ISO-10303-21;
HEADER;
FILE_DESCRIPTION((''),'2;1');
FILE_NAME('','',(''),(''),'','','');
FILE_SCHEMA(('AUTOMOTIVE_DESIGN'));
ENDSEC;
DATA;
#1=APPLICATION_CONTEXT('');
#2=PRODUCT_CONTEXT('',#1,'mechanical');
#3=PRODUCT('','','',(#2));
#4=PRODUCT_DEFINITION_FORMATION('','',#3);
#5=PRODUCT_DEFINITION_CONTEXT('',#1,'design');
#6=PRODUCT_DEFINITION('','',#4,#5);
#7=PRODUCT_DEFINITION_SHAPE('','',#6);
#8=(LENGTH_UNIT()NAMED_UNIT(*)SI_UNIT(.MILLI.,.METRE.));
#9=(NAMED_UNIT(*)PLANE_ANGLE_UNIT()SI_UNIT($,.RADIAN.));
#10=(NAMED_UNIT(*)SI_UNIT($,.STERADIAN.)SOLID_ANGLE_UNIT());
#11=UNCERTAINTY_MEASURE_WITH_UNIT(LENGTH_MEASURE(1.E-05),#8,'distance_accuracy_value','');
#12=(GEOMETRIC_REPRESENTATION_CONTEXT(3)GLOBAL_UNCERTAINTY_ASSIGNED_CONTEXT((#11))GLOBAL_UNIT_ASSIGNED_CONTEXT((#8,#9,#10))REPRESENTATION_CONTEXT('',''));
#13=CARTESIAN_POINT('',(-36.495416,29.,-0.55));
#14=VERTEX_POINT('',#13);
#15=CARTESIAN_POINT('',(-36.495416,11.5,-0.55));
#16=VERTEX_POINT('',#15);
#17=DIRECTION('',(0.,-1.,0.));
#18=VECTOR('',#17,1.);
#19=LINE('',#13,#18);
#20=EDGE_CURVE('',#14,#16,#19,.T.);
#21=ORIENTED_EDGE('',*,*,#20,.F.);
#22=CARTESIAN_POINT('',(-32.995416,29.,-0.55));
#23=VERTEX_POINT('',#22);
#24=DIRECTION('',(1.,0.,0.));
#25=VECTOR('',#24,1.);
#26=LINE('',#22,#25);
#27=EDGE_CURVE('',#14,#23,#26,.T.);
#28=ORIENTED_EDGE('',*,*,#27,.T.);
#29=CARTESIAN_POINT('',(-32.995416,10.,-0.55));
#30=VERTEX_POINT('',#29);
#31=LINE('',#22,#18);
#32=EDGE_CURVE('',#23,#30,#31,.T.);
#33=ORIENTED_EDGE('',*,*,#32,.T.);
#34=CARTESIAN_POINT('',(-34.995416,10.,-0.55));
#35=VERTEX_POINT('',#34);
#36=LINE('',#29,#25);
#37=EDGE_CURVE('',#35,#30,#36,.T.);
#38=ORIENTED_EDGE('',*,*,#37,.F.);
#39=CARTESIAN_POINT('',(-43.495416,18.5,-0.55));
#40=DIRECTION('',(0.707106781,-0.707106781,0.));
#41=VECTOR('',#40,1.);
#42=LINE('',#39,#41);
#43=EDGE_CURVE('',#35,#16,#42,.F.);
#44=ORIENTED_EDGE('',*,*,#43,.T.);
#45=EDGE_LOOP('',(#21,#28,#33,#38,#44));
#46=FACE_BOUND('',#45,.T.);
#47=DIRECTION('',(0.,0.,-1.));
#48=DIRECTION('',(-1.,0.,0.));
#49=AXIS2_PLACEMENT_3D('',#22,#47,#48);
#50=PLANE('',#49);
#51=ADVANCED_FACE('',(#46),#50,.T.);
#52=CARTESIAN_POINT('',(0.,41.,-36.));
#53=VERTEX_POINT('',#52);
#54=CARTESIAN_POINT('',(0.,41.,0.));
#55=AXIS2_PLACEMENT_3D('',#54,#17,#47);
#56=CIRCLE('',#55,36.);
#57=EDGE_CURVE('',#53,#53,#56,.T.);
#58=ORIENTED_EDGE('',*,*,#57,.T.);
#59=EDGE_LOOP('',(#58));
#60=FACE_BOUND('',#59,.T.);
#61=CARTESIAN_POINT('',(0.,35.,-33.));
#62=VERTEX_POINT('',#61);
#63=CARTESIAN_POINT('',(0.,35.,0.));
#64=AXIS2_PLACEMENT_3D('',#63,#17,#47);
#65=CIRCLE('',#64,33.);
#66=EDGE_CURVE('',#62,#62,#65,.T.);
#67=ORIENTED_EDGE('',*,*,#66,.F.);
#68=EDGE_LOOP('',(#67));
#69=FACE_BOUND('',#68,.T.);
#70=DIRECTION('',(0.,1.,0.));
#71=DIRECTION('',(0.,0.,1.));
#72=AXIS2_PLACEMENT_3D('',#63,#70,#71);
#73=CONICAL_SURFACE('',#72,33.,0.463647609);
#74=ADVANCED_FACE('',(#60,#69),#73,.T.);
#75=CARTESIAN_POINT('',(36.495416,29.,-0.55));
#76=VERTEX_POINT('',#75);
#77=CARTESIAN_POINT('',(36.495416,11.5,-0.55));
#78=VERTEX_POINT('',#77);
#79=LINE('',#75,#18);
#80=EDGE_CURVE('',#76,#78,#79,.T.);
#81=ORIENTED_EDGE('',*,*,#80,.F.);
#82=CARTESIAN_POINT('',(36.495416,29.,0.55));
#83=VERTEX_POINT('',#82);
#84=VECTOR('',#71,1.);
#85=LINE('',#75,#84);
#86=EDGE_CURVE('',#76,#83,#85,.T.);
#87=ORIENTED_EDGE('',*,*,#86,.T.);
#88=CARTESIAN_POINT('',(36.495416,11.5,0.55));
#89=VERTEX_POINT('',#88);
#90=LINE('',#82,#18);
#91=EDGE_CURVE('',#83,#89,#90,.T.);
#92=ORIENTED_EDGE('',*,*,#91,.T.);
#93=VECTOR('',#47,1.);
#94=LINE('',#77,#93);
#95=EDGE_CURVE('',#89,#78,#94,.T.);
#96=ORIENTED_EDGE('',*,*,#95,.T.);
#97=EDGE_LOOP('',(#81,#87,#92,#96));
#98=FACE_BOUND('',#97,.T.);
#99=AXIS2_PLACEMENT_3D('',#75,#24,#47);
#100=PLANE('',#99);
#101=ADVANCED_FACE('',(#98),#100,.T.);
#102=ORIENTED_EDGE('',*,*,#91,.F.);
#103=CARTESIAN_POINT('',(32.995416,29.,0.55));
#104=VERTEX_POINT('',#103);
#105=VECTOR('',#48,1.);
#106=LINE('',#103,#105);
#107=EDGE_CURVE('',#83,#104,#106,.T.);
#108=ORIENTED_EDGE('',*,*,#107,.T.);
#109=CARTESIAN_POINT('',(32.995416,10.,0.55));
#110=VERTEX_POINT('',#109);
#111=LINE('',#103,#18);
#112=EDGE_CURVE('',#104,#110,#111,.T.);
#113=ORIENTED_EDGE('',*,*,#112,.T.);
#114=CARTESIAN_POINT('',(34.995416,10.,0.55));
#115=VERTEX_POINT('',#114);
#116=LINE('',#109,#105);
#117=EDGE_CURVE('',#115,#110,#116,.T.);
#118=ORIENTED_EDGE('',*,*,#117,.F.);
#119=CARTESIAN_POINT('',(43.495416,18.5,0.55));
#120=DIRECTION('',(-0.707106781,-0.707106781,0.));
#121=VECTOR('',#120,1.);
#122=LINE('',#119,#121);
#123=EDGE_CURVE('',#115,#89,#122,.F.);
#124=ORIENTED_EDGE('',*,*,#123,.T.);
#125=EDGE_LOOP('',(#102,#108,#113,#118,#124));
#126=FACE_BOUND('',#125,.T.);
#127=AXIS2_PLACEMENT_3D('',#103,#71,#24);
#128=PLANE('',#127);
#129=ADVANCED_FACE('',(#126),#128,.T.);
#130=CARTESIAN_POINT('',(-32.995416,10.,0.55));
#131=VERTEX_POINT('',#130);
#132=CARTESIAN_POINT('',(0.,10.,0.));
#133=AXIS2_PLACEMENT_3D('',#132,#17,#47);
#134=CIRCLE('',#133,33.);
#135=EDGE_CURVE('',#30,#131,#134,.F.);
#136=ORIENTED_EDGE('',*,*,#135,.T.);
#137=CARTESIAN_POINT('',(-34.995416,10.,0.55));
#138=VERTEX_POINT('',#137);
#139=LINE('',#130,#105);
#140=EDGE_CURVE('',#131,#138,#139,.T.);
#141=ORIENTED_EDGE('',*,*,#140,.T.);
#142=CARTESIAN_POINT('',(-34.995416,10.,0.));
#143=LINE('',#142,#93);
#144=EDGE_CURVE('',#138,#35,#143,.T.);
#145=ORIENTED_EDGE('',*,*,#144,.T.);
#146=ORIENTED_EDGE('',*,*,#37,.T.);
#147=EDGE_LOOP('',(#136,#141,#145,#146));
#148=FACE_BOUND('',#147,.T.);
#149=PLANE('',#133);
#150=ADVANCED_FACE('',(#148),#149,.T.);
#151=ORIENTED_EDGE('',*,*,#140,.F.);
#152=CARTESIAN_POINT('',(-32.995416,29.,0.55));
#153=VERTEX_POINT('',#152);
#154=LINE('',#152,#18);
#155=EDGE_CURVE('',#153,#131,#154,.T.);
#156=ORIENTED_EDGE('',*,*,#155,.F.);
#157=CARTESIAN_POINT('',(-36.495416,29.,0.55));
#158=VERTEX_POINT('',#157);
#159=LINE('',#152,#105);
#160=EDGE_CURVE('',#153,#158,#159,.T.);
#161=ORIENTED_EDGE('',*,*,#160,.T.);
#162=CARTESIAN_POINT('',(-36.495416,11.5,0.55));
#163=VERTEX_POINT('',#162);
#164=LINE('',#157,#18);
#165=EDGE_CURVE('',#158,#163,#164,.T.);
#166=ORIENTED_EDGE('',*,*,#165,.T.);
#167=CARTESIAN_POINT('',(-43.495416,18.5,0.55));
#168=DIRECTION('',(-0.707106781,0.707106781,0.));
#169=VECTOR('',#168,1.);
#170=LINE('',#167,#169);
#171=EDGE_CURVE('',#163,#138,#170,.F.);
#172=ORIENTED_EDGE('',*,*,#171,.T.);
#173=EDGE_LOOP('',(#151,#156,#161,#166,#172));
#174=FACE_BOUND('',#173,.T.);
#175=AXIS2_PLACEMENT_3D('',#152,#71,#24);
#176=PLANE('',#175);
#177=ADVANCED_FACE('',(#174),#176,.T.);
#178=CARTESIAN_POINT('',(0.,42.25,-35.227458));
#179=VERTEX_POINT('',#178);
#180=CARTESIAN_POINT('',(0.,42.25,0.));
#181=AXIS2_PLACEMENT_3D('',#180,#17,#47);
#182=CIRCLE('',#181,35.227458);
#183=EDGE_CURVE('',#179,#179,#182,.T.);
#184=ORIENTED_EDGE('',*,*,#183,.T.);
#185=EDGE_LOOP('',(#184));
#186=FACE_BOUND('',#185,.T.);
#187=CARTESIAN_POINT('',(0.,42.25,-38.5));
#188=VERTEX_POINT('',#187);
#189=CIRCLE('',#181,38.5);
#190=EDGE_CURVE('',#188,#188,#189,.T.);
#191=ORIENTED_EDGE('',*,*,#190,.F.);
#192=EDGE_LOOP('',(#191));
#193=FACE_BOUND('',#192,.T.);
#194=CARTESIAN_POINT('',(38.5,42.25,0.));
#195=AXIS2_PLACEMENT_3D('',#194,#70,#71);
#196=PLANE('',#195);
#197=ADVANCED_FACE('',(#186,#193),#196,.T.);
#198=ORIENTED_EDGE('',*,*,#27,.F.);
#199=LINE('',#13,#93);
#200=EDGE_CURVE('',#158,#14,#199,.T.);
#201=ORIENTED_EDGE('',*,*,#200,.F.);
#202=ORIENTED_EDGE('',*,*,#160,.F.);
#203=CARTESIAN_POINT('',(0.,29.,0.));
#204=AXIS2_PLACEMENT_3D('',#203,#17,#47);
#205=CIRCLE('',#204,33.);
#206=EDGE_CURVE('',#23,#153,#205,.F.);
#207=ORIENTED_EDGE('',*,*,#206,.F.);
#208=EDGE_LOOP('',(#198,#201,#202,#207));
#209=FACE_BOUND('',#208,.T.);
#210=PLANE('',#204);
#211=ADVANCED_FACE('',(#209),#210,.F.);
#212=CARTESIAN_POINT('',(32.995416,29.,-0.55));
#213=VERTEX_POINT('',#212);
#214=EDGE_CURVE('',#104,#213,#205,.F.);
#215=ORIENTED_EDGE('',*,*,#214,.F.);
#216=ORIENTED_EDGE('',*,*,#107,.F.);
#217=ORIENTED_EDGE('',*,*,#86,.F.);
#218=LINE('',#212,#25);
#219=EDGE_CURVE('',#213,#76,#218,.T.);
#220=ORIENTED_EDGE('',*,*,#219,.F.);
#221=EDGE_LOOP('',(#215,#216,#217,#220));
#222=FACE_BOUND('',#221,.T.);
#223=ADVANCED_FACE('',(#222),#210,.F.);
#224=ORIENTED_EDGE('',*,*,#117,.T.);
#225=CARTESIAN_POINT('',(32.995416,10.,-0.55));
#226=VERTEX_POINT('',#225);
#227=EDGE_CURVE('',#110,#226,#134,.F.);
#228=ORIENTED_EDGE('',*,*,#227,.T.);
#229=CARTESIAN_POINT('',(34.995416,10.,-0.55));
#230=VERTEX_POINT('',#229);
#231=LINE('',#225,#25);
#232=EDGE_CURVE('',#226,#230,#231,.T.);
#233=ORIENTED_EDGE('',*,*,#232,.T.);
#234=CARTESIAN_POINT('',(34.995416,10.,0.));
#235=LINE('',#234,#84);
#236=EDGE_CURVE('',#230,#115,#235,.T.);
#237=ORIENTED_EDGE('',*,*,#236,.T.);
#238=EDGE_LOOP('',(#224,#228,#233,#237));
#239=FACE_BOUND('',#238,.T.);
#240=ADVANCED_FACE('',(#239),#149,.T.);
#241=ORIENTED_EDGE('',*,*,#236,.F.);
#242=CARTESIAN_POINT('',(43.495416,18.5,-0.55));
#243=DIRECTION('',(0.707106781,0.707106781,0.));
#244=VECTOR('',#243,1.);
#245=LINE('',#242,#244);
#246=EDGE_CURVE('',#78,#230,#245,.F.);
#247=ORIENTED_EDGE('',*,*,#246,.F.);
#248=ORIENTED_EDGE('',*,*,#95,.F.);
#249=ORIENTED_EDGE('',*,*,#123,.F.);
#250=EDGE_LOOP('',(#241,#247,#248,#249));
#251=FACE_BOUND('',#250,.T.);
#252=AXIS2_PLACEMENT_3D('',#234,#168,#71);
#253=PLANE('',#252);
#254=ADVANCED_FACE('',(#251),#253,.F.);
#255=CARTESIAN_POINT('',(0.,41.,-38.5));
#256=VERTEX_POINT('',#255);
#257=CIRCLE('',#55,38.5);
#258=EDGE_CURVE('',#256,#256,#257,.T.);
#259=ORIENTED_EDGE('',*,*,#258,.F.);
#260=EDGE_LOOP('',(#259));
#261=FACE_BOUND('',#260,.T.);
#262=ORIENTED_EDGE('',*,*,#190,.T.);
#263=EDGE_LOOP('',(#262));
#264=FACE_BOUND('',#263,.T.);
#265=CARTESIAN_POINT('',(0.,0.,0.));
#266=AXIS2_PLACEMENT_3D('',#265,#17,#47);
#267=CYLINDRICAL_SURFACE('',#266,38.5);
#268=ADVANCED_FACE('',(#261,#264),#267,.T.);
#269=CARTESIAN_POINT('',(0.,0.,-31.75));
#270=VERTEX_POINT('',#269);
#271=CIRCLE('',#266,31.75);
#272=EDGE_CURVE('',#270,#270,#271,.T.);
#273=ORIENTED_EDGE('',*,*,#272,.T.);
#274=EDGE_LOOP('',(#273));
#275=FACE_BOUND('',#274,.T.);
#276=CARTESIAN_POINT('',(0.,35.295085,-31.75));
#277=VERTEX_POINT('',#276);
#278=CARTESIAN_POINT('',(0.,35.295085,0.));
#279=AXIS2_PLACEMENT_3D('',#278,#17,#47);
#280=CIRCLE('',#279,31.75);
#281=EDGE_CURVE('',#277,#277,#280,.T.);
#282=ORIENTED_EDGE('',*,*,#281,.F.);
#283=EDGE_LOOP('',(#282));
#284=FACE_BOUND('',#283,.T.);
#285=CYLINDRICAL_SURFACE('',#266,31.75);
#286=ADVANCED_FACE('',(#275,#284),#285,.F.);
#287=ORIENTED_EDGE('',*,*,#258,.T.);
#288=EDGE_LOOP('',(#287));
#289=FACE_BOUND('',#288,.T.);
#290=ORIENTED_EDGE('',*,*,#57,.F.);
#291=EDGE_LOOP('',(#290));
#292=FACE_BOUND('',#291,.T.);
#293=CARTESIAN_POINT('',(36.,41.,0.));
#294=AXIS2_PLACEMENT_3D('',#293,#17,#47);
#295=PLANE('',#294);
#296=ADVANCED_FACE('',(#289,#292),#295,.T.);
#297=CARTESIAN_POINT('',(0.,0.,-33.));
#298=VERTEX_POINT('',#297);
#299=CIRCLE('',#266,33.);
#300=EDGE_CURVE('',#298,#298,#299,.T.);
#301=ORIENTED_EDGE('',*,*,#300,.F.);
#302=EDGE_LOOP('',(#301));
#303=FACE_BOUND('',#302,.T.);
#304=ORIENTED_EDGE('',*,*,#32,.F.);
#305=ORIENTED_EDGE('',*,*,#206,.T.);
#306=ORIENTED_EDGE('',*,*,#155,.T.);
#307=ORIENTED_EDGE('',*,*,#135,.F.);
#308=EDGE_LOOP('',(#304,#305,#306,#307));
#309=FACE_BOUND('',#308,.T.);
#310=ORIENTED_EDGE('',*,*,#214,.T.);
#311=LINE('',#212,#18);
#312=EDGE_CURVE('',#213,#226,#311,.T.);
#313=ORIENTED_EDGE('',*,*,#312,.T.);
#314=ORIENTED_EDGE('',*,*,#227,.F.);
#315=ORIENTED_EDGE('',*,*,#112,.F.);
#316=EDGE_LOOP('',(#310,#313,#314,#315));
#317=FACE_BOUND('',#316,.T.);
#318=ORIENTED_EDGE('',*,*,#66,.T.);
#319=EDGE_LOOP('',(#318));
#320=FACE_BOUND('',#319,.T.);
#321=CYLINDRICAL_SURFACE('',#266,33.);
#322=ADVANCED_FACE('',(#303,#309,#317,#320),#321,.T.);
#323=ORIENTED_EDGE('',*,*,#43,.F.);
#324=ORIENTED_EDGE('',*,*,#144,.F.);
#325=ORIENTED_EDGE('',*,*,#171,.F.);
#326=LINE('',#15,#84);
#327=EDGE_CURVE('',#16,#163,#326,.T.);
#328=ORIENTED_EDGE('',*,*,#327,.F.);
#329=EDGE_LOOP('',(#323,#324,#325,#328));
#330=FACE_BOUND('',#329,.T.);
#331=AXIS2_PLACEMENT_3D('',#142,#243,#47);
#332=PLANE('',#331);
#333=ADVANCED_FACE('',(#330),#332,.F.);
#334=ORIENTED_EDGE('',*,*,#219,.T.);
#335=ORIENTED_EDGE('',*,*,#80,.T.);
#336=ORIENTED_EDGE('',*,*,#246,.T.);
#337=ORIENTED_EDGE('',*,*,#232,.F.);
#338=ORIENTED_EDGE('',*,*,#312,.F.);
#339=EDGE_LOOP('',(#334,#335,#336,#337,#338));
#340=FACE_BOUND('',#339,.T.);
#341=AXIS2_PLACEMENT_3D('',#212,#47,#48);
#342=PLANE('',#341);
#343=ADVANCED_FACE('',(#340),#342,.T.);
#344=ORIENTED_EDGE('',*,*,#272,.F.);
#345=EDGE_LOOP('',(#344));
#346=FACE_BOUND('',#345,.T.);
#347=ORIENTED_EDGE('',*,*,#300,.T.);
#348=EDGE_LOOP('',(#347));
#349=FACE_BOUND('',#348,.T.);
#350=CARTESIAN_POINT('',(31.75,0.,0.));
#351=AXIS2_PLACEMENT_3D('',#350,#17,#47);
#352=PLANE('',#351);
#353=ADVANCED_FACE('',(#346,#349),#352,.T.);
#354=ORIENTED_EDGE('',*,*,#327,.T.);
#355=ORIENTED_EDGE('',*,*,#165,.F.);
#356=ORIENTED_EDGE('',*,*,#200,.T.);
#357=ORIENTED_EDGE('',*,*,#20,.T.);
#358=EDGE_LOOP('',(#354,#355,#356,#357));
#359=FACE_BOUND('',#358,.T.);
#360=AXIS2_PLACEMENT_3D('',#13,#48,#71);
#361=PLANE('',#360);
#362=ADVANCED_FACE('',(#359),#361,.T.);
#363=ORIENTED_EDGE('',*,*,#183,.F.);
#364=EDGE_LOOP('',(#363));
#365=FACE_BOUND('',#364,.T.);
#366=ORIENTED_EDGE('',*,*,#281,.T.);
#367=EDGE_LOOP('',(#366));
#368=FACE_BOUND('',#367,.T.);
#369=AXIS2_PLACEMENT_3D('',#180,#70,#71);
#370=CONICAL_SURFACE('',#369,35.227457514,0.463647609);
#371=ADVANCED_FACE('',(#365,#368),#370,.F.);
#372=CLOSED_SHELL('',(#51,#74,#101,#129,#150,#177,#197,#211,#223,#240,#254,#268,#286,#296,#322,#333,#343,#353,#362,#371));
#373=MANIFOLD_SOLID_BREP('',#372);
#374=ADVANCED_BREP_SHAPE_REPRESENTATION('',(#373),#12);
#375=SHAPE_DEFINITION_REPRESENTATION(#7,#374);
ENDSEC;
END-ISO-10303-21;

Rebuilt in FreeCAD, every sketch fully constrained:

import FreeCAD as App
import Part
import Sketcher

V = App.Vector
Q = App.Units.Quantity


def edges_at(feature, points):
    """Names of the edges that pass closest to the given points."""
    edges = feature.Shape.Edges
    near = lambda p: min(range(len(edges)), key=lambda i: edges[i].distToShape(Part.Vertex(*p))[0])
    return sorted({f"Edge{near(p) + 1}" for p in points})


def add_polygon(sketch, points):
    """Adds a closed chain of lines whose ends are joined by coincident constraints."""
    first, n = sketch.GeometryCount, len(points)
    for a, b in zip(points, points[1:] + points[:1]):
        sketch.addGeometry(Part.LineSegment(App.Vector(*a, 0), App.Vector(*b, 0)), False)
    for i in range(n):
        sketch.addConstraint(Sketcher.Constraint("Coincident", first + i, 2, first + (i + 1) % n, 1))

doc = App.newDocument("Part")
body = doc.addObject("PartDesign::Body", "Body")

# Sketch on XY plane
sketch1 = body.newObject("Sketcher::SketchObject", "Sketch")
sketch1.AttachmentSupport = (doc.getObject("XY_Plane"), [""])
sketch1.MapMode = "FlatFace"
add_polygon(sketch1, [(33, 0), (33, 35), (36, 41), (38.5, 41), (38.5, 42.2), (35.2, 42.2), (31.8, 35.3), (31.8, 0)])  # lines 0-7
sketch1.addConstraint([
    Sketcher.Constraint("Vertical", 0),
    Sketcher.Constraint("Horizontal", 2),
    Sketcher.Constraint("Vertical", 3),
    Sketcher.Constraint("Horizontal", 4),
    Sketcher.Constraint("Vertical", 6),
    Sketcher.Constraint("Horizontal", 7),
    Sketcher.Constraint("PointOnObject", 6, 2, -1),
    Sketcher.Constraint("Parallel", 1, 5),
    Sketcher.Constraint("Equal", 7, 3),
    Sketcher.Constraint("DistanceY", 0, 1, 0, 2, Q("35 mm")),
    Sketcher.Constraint("DistanceX", 2, 1, 2, 2, Q("2.5 mm")),
    Sketcher.Constraint("DistanceX", -1, 1, 0, 2, Q("33 mm")),
    Sketcher.Constraint("DistanceX", -1, 1, 1, 2, Q("36 mm")),
    Sketcher.Constraint("DistanceY", -1, 1, 1, 2, Q("41 mm")),
    Sketcher.Constraint("DistanceX", 7, 1, 7, 2, Q("1.25 mm")),
    Sketcher.Constraint("Distance", 5, Q("7.775831 mm")),
])
revolution = body.newObject("PartDesign::Revolution", "Revolution")
revolution.Profile = sketch1
revolution.ReferenceAxis = (sketch1, ["V_Axis"])
revolution.Angle = 360

# Sketch on XZ plane
sketch2 = body.newObject("Sketcher::SketchObject", "Sketch001")
sketch2.AttachmentSupport = (doc.getObject("XZ_Plane"), [""])
sketch2.MapMode = "FlatFace"
sketch2.AttachmentOffset = App.Placement(V(0, 0, -10), App.Rotation())
add_polygon(sketch2, [(-33, 0.6), (-36.5, 0.6), (-36.5, -0.6), (-33, -0.6), (-32.5, 0)])  # lines 0-4
add_polygon(sketch2, [(33, -0.6), (36.5, -0.6), (36.5, 0.6), (33, 0.6), (32.5, 0)])  # lines 5-9
sketch2.addConstraint([
    Sketcher.Constraint("Horizontal", 0),
    Sketcher.Constraint("Vertical", 1),
    Sketcher.Constraint("Horizontal", 2),
    Sketcher.Constraint("Horizontal", 5),
    Sketcher.Constraint("Vertical", 6),
    Sketcher.Constraint("Horizontal", 7),
    Sketcher.Constraint("Symmetric", 0, 2, 5, 2, -1, 1),
    Sketcher.Constraint("Symmetric", 2, 2, 7, 2, -1, 1),
    Sketcher.Constraint("Symmetric", 3, 2, 8, 2, -1, 1),
    Sketcher.Constraint("Symmetric", 4, 2, 7, 2, -2),
    Sketcher.Constraint("PointOnObject", 3, 2, -1),
    Sketcher.Constraint("Parallel", 4, 9),
    Sketcher.Constraint("DistanceX", 0, 2, 0, 1, Q("3.5 mm")),
    Sketcher.Constraint("DistanceY", 1, 2, 1, 1, Q("1.1 mm")),
    Sketcher.Constraint("DistanceX", 0, 2, 3, 2, Q("4 mm")),
    Sketcher.Constraint("DistanceX", 0, 2, -1, 1, Q("36.495416 mm")),
])
pad1 = body.newObject("PartDesign::Pad", "Pad")
pad1.Profile = sketch2
pad1.Length = 19
pad1.Reversed = True
doc.recompute()

chamfer = body.newObject("PartDesign::Chamfer", "Chamfer")
chamfer.Base = (pad1, edges_at(pad1, [(-36.495, 10, 0), (36.495, 10, 0)]))
chamfer.Size = 1.5

doc.recompute()
